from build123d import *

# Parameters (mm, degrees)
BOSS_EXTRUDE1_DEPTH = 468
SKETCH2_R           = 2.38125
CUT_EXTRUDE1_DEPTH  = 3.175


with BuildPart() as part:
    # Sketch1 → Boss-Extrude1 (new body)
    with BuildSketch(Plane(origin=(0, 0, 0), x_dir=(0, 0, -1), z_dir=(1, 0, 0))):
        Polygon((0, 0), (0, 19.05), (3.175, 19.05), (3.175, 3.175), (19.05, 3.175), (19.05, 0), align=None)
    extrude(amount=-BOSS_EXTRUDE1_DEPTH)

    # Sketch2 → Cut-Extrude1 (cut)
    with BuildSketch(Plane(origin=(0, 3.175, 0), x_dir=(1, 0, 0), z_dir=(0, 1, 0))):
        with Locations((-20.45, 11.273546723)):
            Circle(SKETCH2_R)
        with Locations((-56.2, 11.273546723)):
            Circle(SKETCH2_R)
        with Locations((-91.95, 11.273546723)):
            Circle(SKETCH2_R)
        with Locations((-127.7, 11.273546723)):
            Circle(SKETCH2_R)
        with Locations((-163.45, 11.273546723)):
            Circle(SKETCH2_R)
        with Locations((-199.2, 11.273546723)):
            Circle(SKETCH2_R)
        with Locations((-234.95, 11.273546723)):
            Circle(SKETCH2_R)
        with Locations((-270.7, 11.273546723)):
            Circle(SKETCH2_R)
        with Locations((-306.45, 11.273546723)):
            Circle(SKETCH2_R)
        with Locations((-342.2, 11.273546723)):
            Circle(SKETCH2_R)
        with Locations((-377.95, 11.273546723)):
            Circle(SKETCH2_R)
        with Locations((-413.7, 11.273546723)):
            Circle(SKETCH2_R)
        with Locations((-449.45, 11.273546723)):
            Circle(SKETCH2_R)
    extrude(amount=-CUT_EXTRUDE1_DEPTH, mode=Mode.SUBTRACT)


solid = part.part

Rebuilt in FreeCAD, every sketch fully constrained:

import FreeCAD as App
import Part
import Sketcher
Q = App.Units.Quantity

doc = App.newDocument("Part")
body = doc.addObject("PartDesign::Body", "Body")

# Sketch on YZ plane
sketch1 = doc.addObject("Sketcher::SketchObject", "Sketch")
body.addObject(sketch1)
sketch1.AttachmentSupport = (doc.YZ_Plane, [""])
sketch1.MapMode = "FlatFace"
sketch1.addGeometry([
    Part.LineSegment(App.Vector(19.1, 0, 0), App.Vector(0, 0, 0)),  # 0
    Part.LineSegment(App.Vector(0, 0, 0), App.Vector(0, -19.1, 0)),  # 1
    Part.LineSegment(App.Vector(0, -19.1, 0), App.Vector(3.2, -19.1, 0)),  # 2
    Part.LineSegment(App.Vector(3.2, -19.1, 0), App.Vector(3.2, -3.2, 0)),  # 3
    Part.LineSegment(App.Vector(3.2, -3.2, 0), App.Vector(19.1, -3.2, 0)),  # 4
    Part.LineSegment(App.Vector(19.1, -3.2, 0), App.Vector(19.1, 0, 0)),  # 5
], False)
sketch1.addConstraint([
    Sketcher.Constraint("Coincident", 0, 2, 1, 1),
    Sketcher.Constraint("Coincident", 1, 2, 2, 1),
    Sketcher.Constraint("Coincident", 2, 2, 3, 1),
    Sketcher.Constraint("Coincident", 3, 2, 4, 1),
    Sketcher.Constraint("Coincident", 4, 2, 5, 1),
    Sketcher.Constraint("Coincident", 5, 2, 0, 1),
    Sketcher.Constraint("Horizontal", 0),
    Sketcher.Constraint("Vertical", 1),
    Sketcher.Constraint("Horizontal", 2),
    Sketcher.Constraint("Vertical", 3),
    Sketcher.Constraint("Horizontal", 4),
    Sketcher.Constraint("Vertical", 5),
    Sketcher.Constraint("Coincident", 0, 2, -1, 1),
    Sketcher.Constraint("Equal", 0, 1),
    Sketcher.Constraint("Equal", 4, 3),
    Sketcher.Constraint("DistanceX", 0, 2, 0, 1, Q("0.75 in")),
    Sketcher.Constraint("DistanceX", 2, 1, 2, 2, Q("0.125 in")),
])
pad1 = doc.addObject("PartDesign::Pad", "Pad")
body.addObject(pad1)
pad1.Profile = sketch1
pad1.Length = 468
pad1.Reversed = True

# Sketch on XZ plane
sketch2 = doc.addObject("Sketcher::SketchObject", "Sketch001")
body.addObject(sketch2)
sketch2.AttachmentSupport = (doc.XZ_Plane, [""])
sketch2.MapMode = "FlatFace"
sketch2.AttachmentOffset = App.Placement(App.Vector(0, 0, -0.125 * 25.4), App.Rotation())
sketch2.addGeometry([
    Part.Circle(App.Vector(-20.4, -11.3, 0), App.Vector(0, 0, 1), 2.4),  # 0
    Part.Circle(App.Vector(-56.2, -11.3, 0), App.Vector(0, 0, 1), 2.4),  # 1
    Part.Circle(App.Vector(-92, -11.3, 0), App.Vector(0, 0, 1), 2.4),  # 2
    Part.Circle(App.Vector(-127.7, -11.3, 0), App.Vector(0, 0, 1), 2.4),  # 3
    Part.Circle(App.Vector(-163.4, -11.3, 0), App.Vector(0, 0, 1), 2.4),  # 4
    Part.Circle(App.Vector(-199.2, -11.3, 0), App.Vector(0, 0, 1), 2.4),  # 5
    Part.Circle(App.Vector(-234.9, -11.3, 0), App.Vector(0, 0, 1), 2.4),  # 6
    Part.Circle(App.Vector(-270.7, -11.3, 0), App.Vector(0, 0, 1), 2.4),  # 7
    Part.Circle(App.Vector(-306.4, -11.3, 0), App.Vector(0, 0, 1), 2.4),  # 8
    Part.Circle(App.Vector(-342.2, -11.3, 0), App.Vector(0, 0, 1), 2.4),  # 9
    Part.Circle(App.Vector(-377.9, -11.3, 0), App.Vector(0, 0, 1), 2.4),  # 10
    Part.Circle(App.Vector(-413.7, -11.3, 0), App.Vector(0, 0, 1), 2.4),  # 11
    Part.Circle(App.Vector(-449.4, -11.3, 0), App.Vector(0, 0, 1), 2.4),  # 12
], False)
sketch2.addConstraint([
    Sketcher.Constraint("Equal", 0, 1),
    Sketcher.Constraint("Equal", 1, 2),
    Sketcher.Constraint("Equal", 2, 3),
    Sketcher.Constraint("Equal", 3, 4),
    Sketcher.Constraint("Equal", 4, 5),
    Sketcher.Constraint("Equal", 5, 6),
    Sketcher.Constraint("Equal", 6, 7),
    Sketcher.Constraint("Equal", 7, 8),
    Sketcher.Constraint("Equal", 8, 9),
    Sketcher.Constraint("Equal", 9, 10),
    Sketcher.Constraint("Equal", 10, 11),
    Sketcher.Constraint("Equal", 11, 12),
    Sketcher.Constraint("Horizontal", 0, 3, 1, 3),
    Sketcher.Constraint("Horizontal", 1, 3, 2, 3),
    Sketcher.Constraint("Horizontal", 2, 3, 3, 3),
    Sketcher.Constraint("Horizontal", 3, 3, 4, 3),
    Sketcher.Constraint("Horizontal", 4, 3, 5, 3),
    Sketcher.Constraint("Horizontal", 5, 3, 6, 3),
    Sketcher.Constraint("Horizontal", 6, 3, 7, 3),
    Sketcher.Constraint("Horizontal", 7, 3, 8, 3),
    Sketcher.Constraint("Horizontal", 8, 3, 9, 3),
    Sketcher.Constraint("Horizontal", 9, 3, 10, 3),
    Sketcher.Constraint("Horizontal", 10, 3, 11, 3),
    Sketcher.Constraint("Horizontal", 11, 3, 12, 3),
    Sketcher.Constraint("Diameter", 0, Q("0.1875 in")),
    Sketcher.Constraint("DistanceX", 6, 3, -1, 1, Q("9.25 in")),
    Sketcher.Constraint("DistanceX", 0, 3, -1, 1, 20.45),
    Sketcher.Constraint("DistanceX", 1, 3, -1, 1, 56.2),
    Sketcher.Constraint("DistanceX", 2, 3, -1, 1, 91.95),
    Sketcher.Constraint("DistanceX", 3, 3, -1, 1, 127.7),
    Sketcher.Constraint("DistanceX", 4, 3, -1, 1, 163.45),
    Sketcher.Constraint("DistanceX", 5, 3, -1, 1, 199.2),
    Sketcher.Constraint("DistanceX", 7, 3, -1, 1, 270.7),
    Sketcher.Constraint("DistanceX", 8, 3, -1, 1, 306.45),
    Sketcher.Constraint("DistanceX", 9, 3, -1, 1, 342.2),
    Sketcher.Constraint("DistanceX", 10, 3, -1, 1, 377.95),
    Sketcher.Constraint("DistanceX", 11, 3, -1, 1, 413.7),
    Sketcher.Constraint("DistanceX", 12, 3, -1, 1, 449.45),
    Sketcher.Constraint("DistanceY", 0, 3, -1, 1, 11.273547),
])
pocket1 = doc.addObject("PartDesign::Pocket", "Pocket")
body.addObject(pocket1)
pocket1.Profile = sketch2
pocket1.Length = Q("0.125 in")
pocket1.Reversed = True

doc.recompute()
